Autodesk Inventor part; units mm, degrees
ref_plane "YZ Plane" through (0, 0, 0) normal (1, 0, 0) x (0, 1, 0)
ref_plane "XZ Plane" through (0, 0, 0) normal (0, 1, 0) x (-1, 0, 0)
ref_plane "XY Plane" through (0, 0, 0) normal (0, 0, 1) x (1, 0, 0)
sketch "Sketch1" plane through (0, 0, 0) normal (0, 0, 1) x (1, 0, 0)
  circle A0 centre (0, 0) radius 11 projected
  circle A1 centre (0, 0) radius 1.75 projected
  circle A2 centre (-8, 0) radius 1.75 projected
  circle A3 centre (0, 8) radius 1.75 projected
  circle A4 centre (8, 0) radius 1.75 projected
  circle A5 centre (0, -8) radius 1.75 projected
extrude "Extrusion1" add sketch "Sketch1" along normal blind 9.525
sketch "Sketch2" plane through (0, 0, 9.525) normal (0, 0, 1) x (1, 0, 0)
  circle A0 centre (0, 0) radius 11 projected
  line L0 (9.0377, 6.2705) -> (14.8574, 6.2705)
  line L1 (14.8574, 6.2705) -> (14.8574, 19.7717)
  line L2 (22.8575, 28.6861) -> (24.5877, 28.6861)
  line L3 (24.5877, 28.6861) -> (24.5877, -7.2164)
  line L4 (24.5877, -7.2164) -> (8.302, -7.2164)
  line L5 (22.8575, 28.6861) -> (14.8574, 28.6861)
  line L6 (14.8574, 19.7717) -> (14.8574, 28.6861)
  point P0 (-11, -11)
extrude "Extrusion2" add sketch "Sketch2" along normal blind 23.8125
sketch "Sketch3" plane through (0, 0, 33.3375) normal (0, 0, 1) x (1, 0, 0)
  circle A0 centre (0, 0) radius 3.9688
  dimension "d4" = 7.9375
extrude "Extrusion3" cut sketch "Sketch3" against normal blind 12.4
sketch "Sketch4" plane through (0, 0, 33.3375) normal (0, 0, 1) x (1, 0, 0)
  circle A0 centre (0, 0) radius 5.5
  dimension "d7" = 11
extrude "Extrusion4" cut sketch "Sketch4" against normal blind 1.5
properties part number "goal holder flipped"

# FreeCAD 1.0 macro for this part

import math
import FreeCAD as App
import Part
import Sketcher

doc = App.newDocument("Part")
body = doc.addObject("PartDesign::Body", "Body")

sketch1 = body.newObject("Sketcher::SketchObject", "Sketch")
sketch1.AttachmentSupport = (doc.getObject("XY_Plane"), [""])
sketch1.MapMode = "FlatFace"
sketch1.addGeometry([
    Part.Circle(App.Vector(0, 0, 0), App.Vector(0, 0, 1), 11),
    Part.Circle(App.Vector(0, -8, 0), App.Vector(0, 0, 1), 1.8),
    Part.Circle(App.Vector(-8, 0, 0), App.Vector(0, 0, 1), 1.8),
    Part.Circle(App.Vector(0, 0, 0), App.Vector(0, 0, 1), 1.8),
    Part.Circle(App.Vector(8, 0, 0), App.Vector(0, 0, 1), 1.8),
    Part.Circle(App.Vector(0, 8, 0), App.Vector(0, 0, 1), 1.8),
], False)
sketch1.addConstraint([
    Sketcher.Constraint("Coincident", 0, 3, -1, 1),
    Sketcher.Constraint("Coincident", 3, 3, -1, 1),
    Sketcher.Constraint("Equal", 1, 2),
    Sketcher.Constraint("Equal", 2, 3),
    Sketcher.Constraint("Equal", 3, 4),
    Sketcher.Constraint("Equal", 4, 5),
    Sketcher.Constraint("Symmetric", 2, 3, 4, 3, -1, 1),
    Sketcher.Constraint("Symmetric", 1, 3, 5, 3, -1, 1),
    Sketcher.Constraint("PointOnObject", 1, 3, -2),
    Sketcher.Constraint("PointOnObject", 2, 3, -1),
    Sketcher.Constraint("Diameter", 0, 22.0),
    Sketcher.Constraint("Diameter", 1, 3.5),
    Sketcher.Constraint("DistanceY", 1, 3, -1, 1, 8.0),
    Sketcher.Constraint("DistanceX", 2, 3, -1, 1, 8.0),
])
pad1 = body.newObject("PartDesign::Pad", "Pad")
pad1.Profile = sketch1
pad1.Length = 9.525

sketch2 = body.newObject("Sketcher::SketchObject", "Sketch001")
sketch2.AttachmentSupport = (doc.getObject("XY_Plane"), [""])
sketch2.MapMode = "FlatFace"
sketch2.AttachmentOffset = App.Placement(App.Vector(0, 0, 9.525), App.Rotation())
sketch2.addGeometry([
    Part.ArcOfCircle(Part.Circle(App.Vector(0, 0, 0), App.Vector(0, 0, 1), 11), math.radians(35), math.radians(319)),
    Part.LineSegment(App.Vector(8, -7, 0), App.Vector(25, -7, 0)),
    Part.LineSegment(App.Vector(25, -7, 0), App.Vector(25, 29, 0)),
    Part.LineSegment(App.Vector(25, 29, 0), App.Vector(15, 29, 0)),
    Part.LineSegment(App.Vector(15, 29, 0), App.Vector(15, 6, 0)),
    Part.LineSegment(App.Vector(15, 6, 0), App.Vector(9, 6, 0)),
], False)
sketch2.addConstraint([
    Sketcher.Constraint("Coincident", 0, 2, 1, 1),
    Sketcher.Constraint("Coincident", 1, 2, 2, 1),
    Sketcher.Constraint("Coincident", 2, 2, 3, 1),
    Sketcher.Constraint("Coincident", 3, 2, 4, 1),
    Sketcher.Constraint("Coincident", 4, 2, 5, 1),
    Sketcher.Constraint("Coincident", 5, 2, 0, 1),
    Sketcher.Constraint("Horizontal", 1),
    Sketcher.Constraint("Vertical", 2),
    Sketcher.Constraint("Horizontal", 3),
    Sketcher.Constraint("Vertical", 4),
    Sketcher.Constraint("Horizontal", 5),
    Sketcher.Constraint("Coincident", 0, 3, -1, 1),
    Sketcher.Constraint("Radius", 0, 11.0),
    Sketcher.Constraint("DistanceX", 5, 2, 1, 2, 15.55),
    Sketcher.Constraint("DistanceX", 1, 1, 1, 2, 16.2857),
    Sketcher.Constraint("DistanceX", 3, 2, 3, 1, 9.7303),
    Sketcher.Constraint("DistanceY", 2, 1, 2, 2, 35.9025),
    Sketcher.Constraint("DistanceY", 4, 2, 4, 1, 22.4156),
])
pad2 = body.newObject("PartDesign::Pad", "Pad001")
pad2.Profile = sketch2
pad2.Length = 23.8125

sketch3 = body.newObject("Sketcher::SketchObject", "Sketch002")
sketch3.AttachmentSupport = (doc.getObject("XY_Plane"), [""])
sketch3.MapMode = "FlatFace"
sketch3.AttachmentOffset = App.Placement(App.Vector(0, 0, 33.3375), App.Rotation())
sketch3.addGeometry(Part.Circle(App.Vector(0, 0, 0), App.Vector(0, 0, 1), 4), False)
sketch3.addConstraint([
    Sketcher.Constraint("Coincident", 0, 3, -1, 1),
    Sketcher.Constraint("Diameter", 0, 7.9376),
])
pocket1 = body.newObject("PartDesign::Pocket", "Pocket")
pocket1.Profile = sketch3
pocket1.Length = 12.4

sketch4 = body.newObject("Sketcher::SketchObject", "Sketch003")
sketch4.AttachmentSupport = (doc.getObject("XY_Plane"), [""])
sketch4.MapMode = "FlatFace"
sketch4.AttachmentOffset = App.Placement(App.Vector(0, 0, 33.3375), App.Rotation())
sketch4.addGeometry(Part.Circle(App.Vector(0, 0, 0), App.Vector(0, 0, 1), 6), False)
sketch4.addConstraint([
    Sketcher.Constraint("Coincident", 0, 3, -1, 1),
    Sketcher.Constraint("Diameter", 0, 11.0),
])
pocket2 = body.newObject("PartDesign::Pocket", "Pocket001")
pocket2.Profile = sketch4
pocket2.Length = 1.5

doc.recompute()
